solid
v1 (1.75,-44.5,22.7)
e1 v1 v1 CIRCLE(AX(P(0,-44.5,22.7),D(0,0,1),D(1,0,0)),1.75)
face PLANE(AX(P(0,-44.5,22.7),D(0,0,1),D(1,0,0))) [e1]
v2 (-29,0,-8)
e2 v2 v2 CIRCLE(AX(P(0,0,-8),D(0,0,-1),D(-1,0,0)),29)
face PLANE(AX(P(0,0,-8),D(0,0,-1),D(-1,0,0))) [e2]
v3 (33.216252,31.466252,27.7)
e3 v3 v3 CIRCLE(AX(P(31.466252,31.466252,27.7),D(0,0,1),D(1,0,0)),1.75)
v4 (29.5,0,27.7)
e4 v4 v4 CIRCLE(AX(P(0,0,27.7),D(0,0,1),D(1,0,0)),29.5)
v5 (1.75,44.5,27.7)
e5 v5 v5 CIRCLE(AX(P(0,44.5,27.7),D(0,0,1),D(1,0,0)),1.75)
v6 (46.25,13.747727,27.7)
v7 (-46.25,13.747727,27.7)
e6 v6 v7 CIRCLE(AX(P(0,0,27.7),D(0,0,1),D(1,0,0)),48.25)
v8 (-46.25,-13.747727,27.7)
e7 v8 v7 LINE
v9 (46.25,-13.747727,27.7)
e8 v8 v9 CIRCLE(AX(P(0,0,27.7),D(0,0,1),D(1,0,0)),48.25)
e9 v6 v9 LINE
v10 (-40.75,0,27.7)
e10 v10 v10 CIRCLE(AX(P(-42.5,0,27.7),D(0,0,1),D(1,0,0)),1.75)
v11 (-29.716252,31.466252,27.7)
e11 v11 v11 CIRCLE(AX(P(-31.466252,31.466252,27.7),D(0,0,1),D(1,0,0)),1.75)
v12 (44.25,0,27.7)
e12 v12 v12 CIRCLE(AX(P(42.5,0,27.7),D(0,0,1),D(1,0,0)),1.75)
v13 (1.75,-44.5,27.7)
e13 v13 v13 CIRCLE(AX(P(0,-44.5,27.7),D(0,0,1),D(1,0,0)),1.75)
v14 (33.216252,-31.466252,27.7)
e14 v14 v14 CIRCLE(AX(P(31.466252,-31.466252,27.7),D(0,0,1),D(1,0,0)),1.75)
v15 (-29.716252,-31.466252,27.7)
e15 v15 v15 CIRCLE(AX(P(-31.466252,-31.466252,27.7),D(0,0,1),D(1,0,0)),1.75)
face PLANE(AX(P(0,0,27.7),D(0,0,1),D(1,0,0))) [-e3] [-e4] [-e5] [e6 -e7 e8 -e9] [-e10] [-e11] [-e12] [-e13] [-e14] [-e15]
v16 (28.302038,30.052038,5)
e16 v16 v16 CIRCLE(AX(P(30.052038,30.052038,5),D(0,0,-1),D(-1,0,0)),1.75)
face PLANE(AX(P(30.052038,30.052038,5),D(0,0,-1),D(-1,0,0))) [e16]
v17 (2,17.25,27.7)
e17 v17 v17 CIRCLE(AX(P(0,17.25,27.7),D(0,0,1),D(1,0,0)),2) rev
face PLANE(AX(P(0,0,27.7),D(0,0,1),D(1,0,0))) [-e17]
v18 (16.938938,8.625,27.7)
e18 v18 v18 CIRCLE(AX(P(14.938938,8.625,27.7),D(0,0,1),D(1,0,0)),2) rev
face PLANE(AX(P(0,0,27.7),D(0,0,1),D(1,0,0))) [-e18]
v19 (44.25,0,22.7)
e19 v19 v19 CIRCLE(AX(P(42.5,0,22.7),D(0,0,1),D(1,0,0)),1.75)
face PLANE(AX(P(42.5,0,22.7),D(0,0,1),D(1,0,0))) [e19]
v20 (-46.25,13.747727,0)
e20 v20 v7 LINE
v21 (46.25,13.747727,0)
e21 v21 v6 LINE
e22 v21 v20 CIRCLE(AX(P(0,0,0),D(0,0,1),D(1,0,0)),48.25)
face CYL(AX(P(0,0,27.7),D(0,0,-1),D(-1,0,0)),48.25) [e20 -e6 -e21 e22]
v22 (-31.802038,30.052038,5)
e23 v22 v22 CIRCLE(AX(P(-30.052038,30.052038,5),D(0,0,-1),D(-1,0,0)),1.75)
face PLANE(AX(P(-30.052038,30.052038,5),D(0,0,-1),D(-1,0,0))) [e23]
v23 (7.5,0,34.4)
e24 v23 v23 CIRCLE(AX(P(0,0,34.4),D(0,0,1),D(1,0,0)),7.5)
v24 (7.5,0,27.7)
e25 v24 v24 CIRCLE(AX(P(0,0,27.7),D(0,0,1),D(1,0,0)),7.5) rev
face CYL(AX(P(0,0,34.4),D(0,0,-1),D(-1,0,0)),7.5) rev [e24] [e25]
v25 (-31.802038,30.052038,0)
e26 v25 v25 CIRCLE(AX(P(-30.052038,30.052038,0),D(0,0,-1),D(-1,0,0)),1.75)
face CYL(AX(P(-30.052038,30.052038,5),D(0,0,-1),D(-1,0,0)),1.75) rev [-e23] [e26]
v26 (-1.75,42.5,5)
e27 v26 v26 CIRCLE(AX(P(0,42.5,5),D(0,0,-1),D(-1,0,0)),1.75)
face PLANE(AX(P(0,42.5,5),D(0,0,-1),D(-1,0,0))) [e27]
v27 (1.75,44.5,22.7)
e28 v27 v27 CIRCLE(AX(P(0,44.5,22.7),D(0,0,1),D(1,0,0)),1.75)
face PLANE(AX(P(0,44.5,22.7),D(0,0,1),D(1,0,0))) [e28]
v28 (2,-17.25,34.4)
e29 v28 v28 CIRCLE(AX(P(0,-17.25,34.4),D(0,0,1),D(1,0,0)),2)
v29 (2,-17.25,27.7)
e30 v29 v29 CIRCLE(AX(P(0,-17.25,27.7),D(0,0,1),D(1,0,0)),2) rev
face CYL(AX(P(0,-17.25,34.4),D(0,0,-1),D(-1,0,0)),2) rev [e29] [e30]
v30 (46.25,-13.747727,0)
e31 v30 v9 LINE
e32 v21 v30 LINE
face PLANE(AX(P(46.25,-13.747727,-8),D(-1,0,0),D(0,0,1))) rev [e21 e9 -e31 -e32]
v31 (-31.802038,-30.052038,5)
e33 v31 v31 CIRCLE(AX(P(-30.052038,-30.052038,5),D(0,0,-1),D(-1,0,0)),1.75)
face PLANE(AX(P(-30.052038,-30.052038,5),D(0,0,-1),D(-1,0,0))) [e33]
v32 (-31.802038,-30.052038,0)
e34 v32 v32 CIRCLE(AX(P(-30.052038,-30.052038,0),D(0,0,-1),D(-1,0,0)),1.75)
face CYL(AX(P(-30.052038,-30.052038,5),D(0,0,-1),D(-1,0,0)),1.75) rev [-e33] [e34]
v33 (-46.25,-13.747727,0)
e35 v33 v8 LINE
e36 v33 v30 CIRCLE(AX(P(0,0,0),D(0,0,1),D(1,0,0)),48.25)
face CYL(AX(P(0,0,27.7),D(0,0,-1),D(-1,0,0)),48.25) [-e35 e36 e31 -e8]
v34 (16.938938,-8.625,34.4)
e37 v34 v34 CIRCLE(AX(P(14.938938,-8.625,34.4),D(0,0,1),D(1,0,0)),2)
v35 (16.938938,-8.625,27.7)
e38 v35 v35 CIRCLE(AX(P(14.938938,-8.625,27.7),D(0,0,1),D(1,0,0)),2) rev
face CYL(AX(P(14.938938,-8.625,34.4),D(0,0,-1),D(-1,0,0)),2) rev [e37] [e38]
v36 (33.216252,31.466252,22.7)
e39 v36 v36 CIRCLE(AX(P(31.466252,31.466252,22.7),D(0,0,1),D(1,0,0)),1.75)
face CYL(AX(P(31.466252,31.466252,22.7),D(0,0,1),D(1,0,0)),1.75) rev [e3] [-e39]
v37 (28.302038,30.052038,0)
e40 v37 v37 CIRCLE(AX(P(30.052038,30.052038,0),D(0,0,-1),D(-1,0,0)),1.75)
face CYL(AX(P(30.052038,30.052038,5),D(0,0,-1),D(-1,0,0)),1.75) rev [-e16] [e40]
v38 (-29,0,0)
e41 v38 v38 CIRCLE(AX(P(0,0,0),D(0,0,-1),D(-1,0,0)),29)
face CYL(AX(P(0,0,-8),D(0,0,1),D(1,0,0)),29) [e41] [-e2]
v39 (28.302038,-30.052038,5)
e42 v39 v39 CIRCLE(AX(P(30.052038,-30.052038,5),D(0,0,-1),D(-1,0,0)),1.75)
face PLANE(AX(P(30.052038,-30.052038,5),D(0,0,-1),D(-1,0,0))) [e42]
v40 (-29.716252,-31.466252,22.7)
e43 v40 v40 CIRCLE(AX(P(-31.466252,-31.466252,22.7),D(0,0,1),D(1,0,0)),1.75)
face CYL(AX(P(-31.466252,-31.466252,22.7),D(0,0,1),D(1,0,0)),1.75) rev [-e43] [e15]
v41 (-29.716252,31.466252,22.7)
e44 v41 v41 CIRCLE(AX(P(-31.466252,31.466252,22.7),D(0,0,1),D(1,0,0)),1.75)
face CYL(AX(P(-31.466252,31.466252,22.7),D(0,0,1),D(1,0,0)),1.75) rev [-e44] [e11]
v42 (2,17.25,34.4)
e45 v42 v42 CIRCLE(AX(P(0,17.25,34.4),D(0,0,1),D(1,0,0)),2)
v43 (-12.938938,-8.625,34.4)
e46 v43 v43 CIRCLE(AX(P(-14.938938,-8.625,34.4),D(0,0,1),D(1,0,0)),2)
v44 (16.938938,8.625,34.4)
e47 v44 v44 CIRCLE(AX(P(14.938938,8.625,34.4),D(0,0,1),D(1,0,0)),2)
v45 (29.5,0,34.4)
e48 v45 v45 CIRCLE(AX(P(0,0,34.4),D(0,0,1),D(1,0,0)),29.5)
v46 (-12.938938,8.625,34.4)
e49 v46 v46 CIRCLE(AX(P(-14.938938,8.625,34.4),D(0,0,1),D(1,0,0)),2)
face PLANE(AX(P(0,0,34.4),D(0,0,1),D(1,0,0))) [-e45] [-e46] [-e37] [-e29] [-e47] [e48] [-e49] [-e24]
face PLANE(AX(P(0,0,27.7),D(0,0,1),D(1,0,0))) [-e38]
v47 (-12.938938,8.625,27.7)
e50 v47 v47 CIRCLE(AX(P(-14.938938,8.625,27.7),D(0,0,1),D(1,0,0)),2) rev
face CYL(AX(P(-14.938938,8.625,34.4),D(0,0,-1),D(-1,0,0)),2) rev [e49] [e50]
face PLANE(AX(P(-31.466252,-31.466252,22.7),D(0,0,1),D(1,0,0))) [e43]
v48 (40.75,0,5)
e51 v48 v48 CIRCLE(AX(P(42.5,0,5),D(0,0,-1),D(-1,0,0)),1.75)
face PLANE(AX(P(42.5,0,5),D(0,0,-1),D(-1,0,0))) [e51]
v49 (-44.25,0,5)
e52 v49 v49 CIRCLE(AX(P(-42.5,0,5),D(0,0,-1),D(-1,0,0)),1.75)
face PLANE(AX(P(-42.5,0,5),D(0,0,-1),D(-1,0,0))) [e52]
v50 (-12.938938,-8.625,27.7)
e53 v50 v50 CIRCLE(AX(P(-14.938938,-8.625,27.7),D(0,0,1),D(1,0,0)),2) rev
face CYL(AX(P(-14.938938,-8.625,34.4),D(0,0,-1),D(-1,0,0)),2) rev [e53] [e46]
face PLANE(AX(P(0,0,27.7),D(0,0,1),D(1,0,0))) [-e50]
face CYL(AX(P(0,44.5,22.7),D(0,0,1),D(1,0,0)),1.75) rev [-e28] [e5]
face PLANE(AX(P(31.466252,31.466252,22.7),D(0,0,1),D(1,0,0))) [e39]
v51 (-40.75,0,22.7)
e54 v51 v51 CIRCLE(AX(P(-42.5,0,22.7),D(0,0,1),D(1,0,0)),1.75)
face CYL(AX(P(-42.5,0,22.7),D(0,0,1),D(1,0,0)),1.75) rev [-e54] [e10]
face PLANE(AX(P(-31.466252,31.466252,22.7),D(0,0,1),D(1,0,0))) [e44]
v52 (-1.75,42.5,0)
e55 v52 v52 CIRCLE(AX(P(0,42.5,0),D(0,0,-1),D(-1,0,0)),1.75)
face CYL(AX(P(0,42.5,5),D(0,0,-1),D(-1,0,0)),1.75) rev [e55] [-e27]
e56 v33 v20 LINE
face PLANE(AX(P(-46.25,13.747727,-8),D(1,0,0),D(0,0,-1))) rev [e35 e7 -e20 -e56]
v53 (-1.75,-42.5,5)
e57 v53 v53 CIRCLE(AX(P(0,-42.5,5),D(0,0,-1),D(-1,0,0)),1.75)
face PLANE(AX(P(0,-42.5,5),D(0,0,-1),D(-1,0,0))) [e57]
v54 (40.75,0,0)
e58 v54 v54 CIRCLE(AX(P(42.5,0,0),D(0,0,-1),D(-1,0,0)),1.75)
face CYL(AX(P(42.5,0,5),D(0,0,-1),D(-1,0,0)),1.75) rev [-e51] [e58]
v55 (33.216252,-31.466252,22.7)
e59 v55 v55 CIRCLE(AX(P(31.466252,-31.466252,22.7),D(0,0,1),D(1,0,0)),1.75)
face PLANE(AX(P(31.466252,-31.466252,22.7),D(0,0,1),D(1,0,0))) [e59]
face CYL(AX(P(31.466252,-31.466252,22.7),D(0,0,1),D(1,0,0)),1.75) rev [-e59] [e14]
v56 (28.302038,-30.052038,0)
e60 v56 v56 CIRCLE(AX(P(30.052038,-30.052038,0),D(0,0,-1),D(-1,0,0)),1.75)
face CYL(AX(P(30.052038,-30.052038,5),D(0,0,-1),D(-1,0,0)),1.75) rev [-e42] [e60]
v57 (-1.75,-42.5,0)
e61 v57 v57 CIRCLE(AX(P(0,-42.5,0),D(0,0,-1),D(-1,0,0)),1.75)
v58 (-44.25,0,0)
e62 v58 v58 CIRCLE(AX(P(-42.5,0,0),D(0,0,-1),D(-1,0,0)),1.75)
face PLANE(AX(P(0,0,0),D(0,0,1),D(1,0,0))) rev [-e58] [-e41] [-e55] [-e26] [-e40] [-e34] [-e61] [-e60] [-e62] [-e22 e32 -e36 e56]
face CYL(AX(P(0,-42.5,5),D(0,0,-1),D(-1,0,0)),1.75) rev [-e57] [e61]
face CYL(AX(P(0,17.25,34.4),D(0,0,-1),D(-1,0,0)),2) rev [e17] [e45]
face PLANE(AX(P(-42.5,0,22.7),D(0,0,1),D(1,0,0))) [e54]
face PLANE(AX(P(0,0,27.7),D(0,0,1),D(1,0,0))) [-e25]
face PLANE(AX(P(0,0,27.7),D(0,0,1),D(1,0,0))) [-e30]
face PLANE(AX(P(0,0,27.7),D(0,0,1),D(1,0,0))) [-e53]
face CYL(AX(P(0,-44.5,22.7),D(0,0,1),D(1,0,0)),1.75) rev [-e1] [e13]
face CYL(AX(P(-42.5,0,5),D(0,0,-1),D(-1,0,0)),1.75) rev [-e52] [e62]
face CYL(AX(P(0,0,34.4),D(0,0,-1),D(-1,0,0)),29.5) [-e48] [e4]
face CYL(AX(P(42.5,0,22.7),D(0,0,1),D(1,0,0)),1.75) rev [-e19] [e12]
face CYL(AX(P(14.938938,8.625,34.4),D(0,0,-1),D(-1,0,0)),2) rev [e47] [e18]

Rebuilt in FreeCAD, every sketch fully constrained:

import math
import FreeCAD as App
import Part
import Sketcher

V = App.Vector
Q = App.Units.Quantity

doc = App.newDocument("Part")
body = doc.addObject("PartDesign::Body", "Body")

sketch1 = body.newObject("Sketcher::SketchObject", "Sketch")
sketch1.AttachmentSupport = (doc.getObject("XY_Plane"), [""])
sketch1.MapMode = "FlatFace"
sketch1.addGeometry(Part.Circle(V(0, 0, 0), V(0, 0, 1), 48), False)
sketch1.addConstraint(Sketcher.Constraint("Coincident", 0, 3, -1, 1))
sketch1.addConstraint(Sketcher.Constraint("Diameter", 0, Q("96.5 mm")))
pad1 = body.newObject("PartDesign::Pad", "Pad")
pad1.Profile = sketch1
pad1.Length = 27.7

sketch2 = body.newObject("Sketcher::SketchObject", "Sketch001")
sketch2.AttachmentSupport = (doc.getObject("XY_Plane"), [""])
sketch2.MapMode = "FlatFace"
sketch2.addGeometry(Part.Circle(V(0, 0, 0), V(0, 0, 1), 29), False)
sketch2.addConstraint(Sketcher.Constraint("Coincident", 0, 3, -1, 1))
sketch2.addConstraint(Sketcher.Constraint("Diameter", 0, Q("58 mm")))
pad2 = body.newObject("PartDesign::Pad", "Pad001")
pad2.Profile = sketch2
pad2.Length = 8
pad2.Reversed = True

sketch3 = body.newObject("Sketcher::SketchObject", "Sketch002")
sketch3.AttachmentSupport = (doc.getObject("XY_Plane"), [""])
sketch3.MapMode = "FlatFace"
sketch3.AttachmentOffset = App.Placement(V(0, 0, 27.7), App.Rotation())
sketch3.addGeometry(Part.Circle(V(0, 0, 0), V(0, 0, 1), 29.5), False)
sketch3.addGeometry(Part.Circle(V(0, -17.2, 0), V(0, 0, 1), 2), False)
sketch3.addGeometry(Part.Circle(V(-14.9, -8.6, 0), V(0, 0, 1), 2), False)
sketch3.addGeometry(Part.Circle(V(14.9, -8.6, 0), V(0, 0, 1), 2), False)
sketch3.addGeometry(Part.Circle(V(-14.9, 8.6, 0), V(0, 0, 1), 2), False)
sketch3.addGeometry(Part.Circle(V(0, 0, 0), V(0, 0, 1), 7.5), False)
sketch3.addGeometry(Part.Circle(V(0, 17.2, 0), V(0, 0, 1), 2), False)
sketch3.addGeometry(Part.Circle(V(14.9, 8.6, 0), V(0, 0, 1), 2), False)
sketch3.addConstraint(Sketcher.Constraint("Coincident", 0, 3, -1, 1))
sketch3.addConstraint(Sketcher.Constraint("Coincident", 5, 3, -1, 1))
sketch3.addConstraint(Sketcher.Constraint("Equal", 1, 2))
sketch3.addConstraint(Sketcher.Constraint("Equal", 2, 3))
sketch3.addConstraint(Sketcher.Constraint("Equal", 3, 4))
sketch3.addConstraint(Sketcher.Constraint("Equal", 4, 6))
sketch3.addConstraint(Sketcher.Constraint("Equal", 6, 7))
sketch3.addConstraint(Sketcher.Constraint("Symmetric", 3, 3, 4, 3, -1, 1))
sketch3.addConstraint(Sketcher.Constraint("Symmetric", 1, 3, 6, 3, -1, 1))
sketch3.addConstraint(Sketcher.Constraint("Symmetric", 2, 3, 7, 3, -1, 1))
sketch3.addConstraint(Sketcher.Constraint("Symmetric", 2, 3, 3, 3, -2))
sketch3.addConstraint(Sketcher.Constraint("PointOnObject", 1, 3, -2))
sketch3.addConstraint(Sketcher.Constraint("Diameter", 0, Q("59 mm")))
sketch3.addConstraint(Sketcher.Constraint("Diameter", 1, Q("4 mm")))
sketch3.addConstraint(Sketcher.Constraint("Diameter", 5, Q("15 mm")))
sketch3.addConstraint(Sketcher.Constraint("DistanceY", 1, 3, -1, 1, Q("17.25 mm")))
sketch3.addConstraint(Sketcher.Constraint("DistanceY", 2, 3, 4, 3, Q("17.25 mm")))
sketch3.addConstraint(Sketcher.Constraint("DistanceX", 2, 3, -1, 1, Q("14.938938 mm")))
pad3 = body.newObject("PartDesign::Pad", "Pad002")
pad3.Profile = sketch3
pad3.Length = 6.7

sketch4 = body.newObject("Sketcher::SketchObject", "Sketch003")
sketch4.AttachmentSupport = (doc.getObject("XY_Plane"), [""])
sketch4.MapMode = "FlatFace"
sketch4.AttachmentOffset = App.Placement(V(0, 0, 27.7), App.Rotation())
sketch4.addGeometry(Part.Circle(V(0, 44.5, 0), V(0, 0, 1), 1.8), False)
sketch4.addGeometry(Part.Circle(V(31.5, 31.5, 0), V(0, 0, 1), 1.8), False)
sketch4.addGeometry(Part.Circle(V(31.5, -31.5, 0), V(0, 0, 1), 1.8), False)
sketch4.addGeometry(Part.Circle(V(0, -44.5, 0), V(0, 0, 1), 1.8), False)
sketch4.addGeometry(Part.Circle(V(-31.5, -31.5, 0), V(0, 0, 1), 1.8), False)
sketch4.addGeometry(Part.Circle(V(-31.5, 31.5, 0), V(0, 0, 1), 1.8), False)
sketch4.addGeometry(Part.Circle(V(-42.5, 0, 0), V(0, 0, 1), 1.8), False)
sketch4.addGeometry(Part.Circle(V(42.5, 0, 0), V(0, 0, 1), 1.8), False)
sketch4.addConstraint(Sketcher.Constraint("Equal", 0, 1))
sketch4.addConstraint(Sketcher.Constraint("Equal", 1, 2))
sketch4.addConstraint(Sketcher.Constraint("Equal", 2, 3))
sketch4.addConstraint(Sketcher.Constraint("Equal", 3, 4))
sketch4.addConstraint(Sketcher.Constraint("Equal", 4, 5))
sketch4.addConstraint(Sketcher.Constraint("Equal", 5, 6))
sketch4.addConstraint(Sketcher.Constraint("Equal", 6, 7))
sketch4.addConstraint(Sketcher.Constraint("Symmetric", 0, 3, 3, 3, -1, 1))
sketch4.addConstraint(Sketcher.Constraint("Symmetric", 1, 3, 4, 3, -1, 1))
sketch4.addConstraint(Sketcher.Constraint("Symmetric", 2, 3, 5, 3, -1, 1))
sketch4.addConstraint(Sketcher.Constraint("Symmetric", 6, 3, 7, 3, -1, 1))
sketch4.addConstraint(Sketcher.Constraint("Symmetric", 2, 3, 4, 3, -2))
sketch4.addConstraint(Sketcher.Constraint("PointOnObject", 0, 3, -2))
sketch4.addConstraint(Sketcher.Constraint("PointOnObject", 6, 3, -1))
sketch4.addConstraint(Sketcher.Constraint("Diameter", 0, Q("3.5 mm")))
sketch4.addConstraint(Sketcher.Constraint("DistanceY", 3, 3, 0, 3, Q("89 mm")))
sketch4.addConstraint(Sketcher.Constraint("DistanceX", 6, 3, -1, 1, Q("42.5 mm")))
sketch4.addConstraint(Sketcher.Constraint("DistanceX", -1, 1, 1, 3, Q("31.466252 mm")))
sketch4.addConstraint(Sketcher.Constraint("DistanceY", -1, 1, 1, 3, Q("31.466252 mm")))
pocket1 = body.newObject("PartDesign::Pocket", "Pocket")
pocket1.Profile = sketch4
pocket1.Length = 5

sketch5 = body.newObject("Sketcher::SketchObject", "Sketch004")
sketch5.AttachmentSupport = (doc.getObject("XY_Plane"), [""])
sketch5.MapMode = "FlatFace"
sketch5.addGeometry(Part.Circle(V(0, 42.5, 0), V(0, 0, 1), 1.8), False)
sketch5.addGeometry(Part.Circle(V(-30.1, 30.1, 0), V(0, 0, 1), 1.8), False)
sketch5.addGeometry(Part.Circle(V(-42.5, 0, 0), V(0, 0, 1), 1.8), False)
sketch5.addGeometry(Part.Circle(V(-30.1, -30.1, 0), V(0, 0, 1), 1.8), False)
sketch5.addGeometry(Part.Circle(V(0, -42.5, 0), V(0, 0, 1), 1.8), False)
sketch5.addGeometry(Part.Circle(V(30.1, -30.1, 0), V(0, 0, 1), 1.8), False)
sketch5.addGeometry(Part.Circle(V(42.5, 0, 0), V(0, 0, 1), 1.8), False)
sketch5.addGeometry(Part.Circle(V(30.1, 30.1, 0), V(0, 0, 1), 1.8), False)
sketch5.addConstraint(Sketcher.Constraint("Equal", 0, 1))
sketch5.addConstraint(Sketcher.Constraint("Equal", 1, 2))
sketch5.addConstraint(Sketcher.Constraint("Equal", 2, 3))
sketch5.addConstraint(Sketcher.Constraint("Equal", 3, 4))
sketch5.addConstraint(Sketcher.Constraint("Equal", 4, 5))
sketch5.addConstraint(Sketcher.Constraint("Equal", 5, 6))
sketch5.addConstraint(Sketcher.Constraint("Equal", 6, 7))
sketch5.addConstraint(Sketcher.Constraint("Symmetric", 0, 3, 4, 3, -1, 1))
sketch5.addConstraint(Sketcher.Constraint("Symmetric", 1, 3, 5, 3, -1, 1))
sketch5.addConstraint(Sketcher.Constraint("Symmetric", 2, 3, 6, 3, -1, 1))
sketch5.addConstraint(Sketcher.Constraint("Symmetric", 3, 3, 7, 3, -1, 1))
sketch5.addConstraint(Sketcher.Constraint("Symmetric", 3, 3, 5, 3, -2))
sketch5.addConstraint(Sketcher.Constraint("PointOnObject", 0, 3, -2))
sketch5.addConstraint(Sketcher.Constraint("PointOnObject", 2, 3, -1))
sketch5.addConstraint(Sketcher.Constraint("Diameter", 0, Q("3.5 mm")))
sketch5.addConstraint(Sketcher.Constraint("DistanceY", 4, 3, 0, 3, Q("85 mm")))
sketch5.addConstraint(Sketcher.Constraint("DistanceX", 2, 3, -1, 1, Q("42.5 mm")))
sketch5.addConstraint(Sketcher.Constraint("DistanceX", 1, 3, -1, 1, Q("30.052038 mm")))
sketch5.addConstraint(Sketcher.Constraint("DistanceY", -1, 1, 1, 3, Q("30.052038 mm")))
pocket2 = body.newObject("PartDesign::Pocket", "Pocket001")
pocket2.Profile = sketch5
pocket2.Length = 5
pocket2.Reversed = True

sketch6 = body.newObject("Sketcher::SketchObject", "Sketch005")
sketch6.AttachmentSupport = (doc.getObject("XY_Plane"), [""])
sketch6.MapMode = "FlatFace"
sketch6.AttachmentOffset = App.Placement(V(0, 0, 27.7), App.Rotation())
sketch6.addGeometry(Part.LineSegment(V(-46, -14, 0), V(-46, 14, 0)), False)
sketch6.addGeometry(Part.ArcOfCircle(Part.Circle(V(0, 0, 0), V(0, 0, 1), 48), math.radians(163), math.radians(197)), False)
sketch6.addGeometry(Part.LineSegment(V(46, 14, 0), V(46, -14, 0)), False)
sketch6.addGeometry(Part.ArcOfCircle(Part.Circle(V(0, 0, 0), V(0, 0, 1), 48), math.radians(-17), math.radians(17)), False)
sketch6.addConstraint(Sketcher.Constraint("Coincident", 0, 1, 1, 2))
sketch6.addConstraint(Sketcher.Constraint("Coincident", 1, 1, 0, 2))
sketch6.addConstraint(Sketcher.Constraint("Coincident", 2, 1, 3, 2))
sketch6.addConstraint(Sketcher.Constraint("Coincident", 3, 1, 2, 2))
sketch6.addConstraint(Sketcher.Constraint("Vertical", 0))
sketch6.addConstraint(Sketcher.Constraint("Vertical", 2))
sketch6.addConstraint(Sketcher.Constraint("Coincident", 1, 3, -1, 1))
sketch6.addConstraint(Sketcher.Constraint("Coincident", 3, 3, -1, 1))
sketch6.addConstraint(Sketcher.Constraint("Equal", 1, 3))
sketch6.addConstraint(Sketcher.Constraint("Horizontal", 1, 1, 2, 1))
sketch6.addConstraint(Sketcher.Constraint("Radius", 1, Q("48.25 mm")))
sketch6.addConstraint(Sketcher.Constraint("DistanceX", 1, 1, 2, 1, Q("92.5 mm")))
pocket3 = body.newObject("PartDesign::Pocket", "Pocket002")
pocket3.Profile = sketch6
pocket3.Type = "ThroughAll"

doc.recompute()
